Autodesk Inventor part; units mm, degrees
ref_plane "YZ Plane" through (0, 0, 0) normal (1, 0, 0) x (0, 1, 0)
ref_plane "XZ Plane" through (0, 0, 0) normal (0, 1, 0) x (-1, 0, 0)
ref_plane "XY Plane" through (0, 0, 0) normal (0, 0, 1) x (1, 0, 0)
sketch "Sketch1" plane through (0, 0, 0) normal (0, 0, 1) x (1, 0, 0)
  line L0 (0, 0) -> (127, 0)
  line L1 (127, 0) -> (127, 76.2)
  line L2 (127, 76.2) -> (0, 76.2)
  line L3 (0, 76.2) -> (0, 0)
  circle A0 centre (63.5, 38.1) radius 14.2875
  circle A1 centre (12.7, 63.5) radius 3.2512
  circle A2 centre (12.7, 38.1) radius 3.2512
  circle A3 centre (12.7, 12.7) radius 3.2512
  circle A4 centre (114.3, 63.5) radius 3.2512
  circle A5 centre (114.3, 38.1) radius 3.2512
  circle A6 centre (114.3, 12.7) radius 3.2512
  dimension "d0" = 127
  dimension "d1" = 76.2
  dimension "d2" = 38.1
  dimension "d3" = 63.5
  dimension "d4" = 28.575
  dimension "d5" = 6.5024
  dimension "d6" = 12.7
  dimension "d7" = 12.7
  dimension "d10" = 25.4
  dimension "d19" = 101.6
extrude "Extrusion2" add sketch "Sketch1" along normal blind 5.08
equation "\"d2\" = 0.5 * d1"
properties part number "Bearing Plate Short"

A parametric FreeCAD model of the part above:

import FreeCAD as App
import Part
import Sketcher

V = App.Vector
Q = App.Units.Quantity


def add_polygon(sketch, points):
    """Adds a closed chain of lines whose ends are joined by coincident constraints."""
    first, n = sketch.GeometryCount, len(points)
    for a, b in zip(points, points[1:] + points[:1]):
        sketch.addGeometry(Part.LineSegment(App.Vector(*a, 0), App.Vector(*b, 0)), False)
    for i in range(n):
        sketch.addConstraint(Sketcher.Constraint("Coincident", first + i, 2, first + (i + 1) % n, 1))

doc = App.newDocument("Part")
body = doc.addObject("PartDesign::Body", "Body")

sketch1 = body.newObject("Sketcher::SketchObject", "Sketch")
sketch1.AttachmentSupport = (doc.getObject("XY_Plane"), [""])
sketch1.MapMode = "FlatFace"
add_polygon(sketch1, [(0, 76.2), (0, 0), (127, 0), (127, 76.2)])
sketch1.addGeometry(Part.Circle(V(12.7, 12.7, 0), V(0, 0, 1), 3.3), False)
sketch1.addGeometry(Part.Circle(V(114.3, 12.7, 0), V(0, 0, 1), 3.3), False)
sketch1.addGeometry(Part.Circle(V(12.7, 38.1, 0), V(0, 0, 1), 3.3), False)
sketch1.addGeometry(Part.Circle(V(12.7, 63.5, 0), V(0, 0, 1), 3.3), False)
sketch1.addGeometry(Part.Circle(V(63.5, 38.1, 0), V(0, 0, 1), 14.3), False)
sketch1.addGeometry(Part.Circle(V(114.3, 38.1, 0), V(0, 0, 1), 3.3), False)
sketch1.addGeometry(Part.Circle(V(114.3, 63.5, 0), V(0, 0, 1), 3.3), False)
sketch1.addConstraint([
    Sketcher.Constraint("Vertical", 0),
    Sketcher.Constraint("Horizontal", 1),
    Sketcher.Constraint("Vertical", 2),
    Sketcher.Constraint("Horizontal", 3),
    Sketcher.Constraint("Coincident", 0, 2, -1, 1),
    Sketcher.Constraint("Equal", 4, 5),
    Sketcher.Constraint("Equal", 5, 6),
    Sketcher.Constraint("Equal", 6, 7),
    Sketcher.Constraint("Equal", 7, 9),
    Sketcher.Constraint("Equal", 9, 10),
    Sketcher.Constraint("Horizontal", 4, 3, 5, 3),
    Sketcher.Constraint("Horizontal", 6, 3, 8, 3),
    Sketcher.Constraint("Horizontal", 8, 3, 9, 3),
    Sketcher.Constraint("Horizontal", 7, 3, 10, 3),
    Sketcher.Constraint("Vertical", 4, 3, 6, 3),
    Sketcher.Constraint("Vertical", 6, 3, 7, 3),
    Sketcher.Constraint("Vertical", 5, 3, 9, 3),
    Sketcher.Constraint("Vertical", 9, 3, 10, 3),
    Sketcher.Constraint("DistanceX", 1, 1, 1, 2, Q("5 in")),
    Sketcher.Constraint("DistanceY", 0, 2, 0, 1, Q("3 in")),
    Sketcher.Constraint("Diameter", 4, Q("0.256 in")),
    Sketcher.Constraint("Diameter", 8, Q("1.125 in")),
    Sketcher.Constraint("DistanceX", 4, 3, 5, 3, Q("4 in")),
    Sketcher.Constraint("DistanceY", 4, 3, 6, 3, Q("1 in")),
    Sketcher.Constraint("DistanceY", 6, 3, 7, 3, Q("1 in")),
    Sketcher.Constraint("DistanceX", -1, 1, 4, 3, Q("0.5 in")),
    Sketcher.Constraint("DistanceY", -1, 1, 4, 3, Q("0.5 in")),
    Sketcher.Constraint("DistanceX", -1, 1, 8, 3, Q("2.5 in")),
])
pad1 = body.newObject("PartDesign::Pad", "Pad")
pad1.Profile = sketch1
pad1.Length = Q("0.2 in")

doc.recompute()
